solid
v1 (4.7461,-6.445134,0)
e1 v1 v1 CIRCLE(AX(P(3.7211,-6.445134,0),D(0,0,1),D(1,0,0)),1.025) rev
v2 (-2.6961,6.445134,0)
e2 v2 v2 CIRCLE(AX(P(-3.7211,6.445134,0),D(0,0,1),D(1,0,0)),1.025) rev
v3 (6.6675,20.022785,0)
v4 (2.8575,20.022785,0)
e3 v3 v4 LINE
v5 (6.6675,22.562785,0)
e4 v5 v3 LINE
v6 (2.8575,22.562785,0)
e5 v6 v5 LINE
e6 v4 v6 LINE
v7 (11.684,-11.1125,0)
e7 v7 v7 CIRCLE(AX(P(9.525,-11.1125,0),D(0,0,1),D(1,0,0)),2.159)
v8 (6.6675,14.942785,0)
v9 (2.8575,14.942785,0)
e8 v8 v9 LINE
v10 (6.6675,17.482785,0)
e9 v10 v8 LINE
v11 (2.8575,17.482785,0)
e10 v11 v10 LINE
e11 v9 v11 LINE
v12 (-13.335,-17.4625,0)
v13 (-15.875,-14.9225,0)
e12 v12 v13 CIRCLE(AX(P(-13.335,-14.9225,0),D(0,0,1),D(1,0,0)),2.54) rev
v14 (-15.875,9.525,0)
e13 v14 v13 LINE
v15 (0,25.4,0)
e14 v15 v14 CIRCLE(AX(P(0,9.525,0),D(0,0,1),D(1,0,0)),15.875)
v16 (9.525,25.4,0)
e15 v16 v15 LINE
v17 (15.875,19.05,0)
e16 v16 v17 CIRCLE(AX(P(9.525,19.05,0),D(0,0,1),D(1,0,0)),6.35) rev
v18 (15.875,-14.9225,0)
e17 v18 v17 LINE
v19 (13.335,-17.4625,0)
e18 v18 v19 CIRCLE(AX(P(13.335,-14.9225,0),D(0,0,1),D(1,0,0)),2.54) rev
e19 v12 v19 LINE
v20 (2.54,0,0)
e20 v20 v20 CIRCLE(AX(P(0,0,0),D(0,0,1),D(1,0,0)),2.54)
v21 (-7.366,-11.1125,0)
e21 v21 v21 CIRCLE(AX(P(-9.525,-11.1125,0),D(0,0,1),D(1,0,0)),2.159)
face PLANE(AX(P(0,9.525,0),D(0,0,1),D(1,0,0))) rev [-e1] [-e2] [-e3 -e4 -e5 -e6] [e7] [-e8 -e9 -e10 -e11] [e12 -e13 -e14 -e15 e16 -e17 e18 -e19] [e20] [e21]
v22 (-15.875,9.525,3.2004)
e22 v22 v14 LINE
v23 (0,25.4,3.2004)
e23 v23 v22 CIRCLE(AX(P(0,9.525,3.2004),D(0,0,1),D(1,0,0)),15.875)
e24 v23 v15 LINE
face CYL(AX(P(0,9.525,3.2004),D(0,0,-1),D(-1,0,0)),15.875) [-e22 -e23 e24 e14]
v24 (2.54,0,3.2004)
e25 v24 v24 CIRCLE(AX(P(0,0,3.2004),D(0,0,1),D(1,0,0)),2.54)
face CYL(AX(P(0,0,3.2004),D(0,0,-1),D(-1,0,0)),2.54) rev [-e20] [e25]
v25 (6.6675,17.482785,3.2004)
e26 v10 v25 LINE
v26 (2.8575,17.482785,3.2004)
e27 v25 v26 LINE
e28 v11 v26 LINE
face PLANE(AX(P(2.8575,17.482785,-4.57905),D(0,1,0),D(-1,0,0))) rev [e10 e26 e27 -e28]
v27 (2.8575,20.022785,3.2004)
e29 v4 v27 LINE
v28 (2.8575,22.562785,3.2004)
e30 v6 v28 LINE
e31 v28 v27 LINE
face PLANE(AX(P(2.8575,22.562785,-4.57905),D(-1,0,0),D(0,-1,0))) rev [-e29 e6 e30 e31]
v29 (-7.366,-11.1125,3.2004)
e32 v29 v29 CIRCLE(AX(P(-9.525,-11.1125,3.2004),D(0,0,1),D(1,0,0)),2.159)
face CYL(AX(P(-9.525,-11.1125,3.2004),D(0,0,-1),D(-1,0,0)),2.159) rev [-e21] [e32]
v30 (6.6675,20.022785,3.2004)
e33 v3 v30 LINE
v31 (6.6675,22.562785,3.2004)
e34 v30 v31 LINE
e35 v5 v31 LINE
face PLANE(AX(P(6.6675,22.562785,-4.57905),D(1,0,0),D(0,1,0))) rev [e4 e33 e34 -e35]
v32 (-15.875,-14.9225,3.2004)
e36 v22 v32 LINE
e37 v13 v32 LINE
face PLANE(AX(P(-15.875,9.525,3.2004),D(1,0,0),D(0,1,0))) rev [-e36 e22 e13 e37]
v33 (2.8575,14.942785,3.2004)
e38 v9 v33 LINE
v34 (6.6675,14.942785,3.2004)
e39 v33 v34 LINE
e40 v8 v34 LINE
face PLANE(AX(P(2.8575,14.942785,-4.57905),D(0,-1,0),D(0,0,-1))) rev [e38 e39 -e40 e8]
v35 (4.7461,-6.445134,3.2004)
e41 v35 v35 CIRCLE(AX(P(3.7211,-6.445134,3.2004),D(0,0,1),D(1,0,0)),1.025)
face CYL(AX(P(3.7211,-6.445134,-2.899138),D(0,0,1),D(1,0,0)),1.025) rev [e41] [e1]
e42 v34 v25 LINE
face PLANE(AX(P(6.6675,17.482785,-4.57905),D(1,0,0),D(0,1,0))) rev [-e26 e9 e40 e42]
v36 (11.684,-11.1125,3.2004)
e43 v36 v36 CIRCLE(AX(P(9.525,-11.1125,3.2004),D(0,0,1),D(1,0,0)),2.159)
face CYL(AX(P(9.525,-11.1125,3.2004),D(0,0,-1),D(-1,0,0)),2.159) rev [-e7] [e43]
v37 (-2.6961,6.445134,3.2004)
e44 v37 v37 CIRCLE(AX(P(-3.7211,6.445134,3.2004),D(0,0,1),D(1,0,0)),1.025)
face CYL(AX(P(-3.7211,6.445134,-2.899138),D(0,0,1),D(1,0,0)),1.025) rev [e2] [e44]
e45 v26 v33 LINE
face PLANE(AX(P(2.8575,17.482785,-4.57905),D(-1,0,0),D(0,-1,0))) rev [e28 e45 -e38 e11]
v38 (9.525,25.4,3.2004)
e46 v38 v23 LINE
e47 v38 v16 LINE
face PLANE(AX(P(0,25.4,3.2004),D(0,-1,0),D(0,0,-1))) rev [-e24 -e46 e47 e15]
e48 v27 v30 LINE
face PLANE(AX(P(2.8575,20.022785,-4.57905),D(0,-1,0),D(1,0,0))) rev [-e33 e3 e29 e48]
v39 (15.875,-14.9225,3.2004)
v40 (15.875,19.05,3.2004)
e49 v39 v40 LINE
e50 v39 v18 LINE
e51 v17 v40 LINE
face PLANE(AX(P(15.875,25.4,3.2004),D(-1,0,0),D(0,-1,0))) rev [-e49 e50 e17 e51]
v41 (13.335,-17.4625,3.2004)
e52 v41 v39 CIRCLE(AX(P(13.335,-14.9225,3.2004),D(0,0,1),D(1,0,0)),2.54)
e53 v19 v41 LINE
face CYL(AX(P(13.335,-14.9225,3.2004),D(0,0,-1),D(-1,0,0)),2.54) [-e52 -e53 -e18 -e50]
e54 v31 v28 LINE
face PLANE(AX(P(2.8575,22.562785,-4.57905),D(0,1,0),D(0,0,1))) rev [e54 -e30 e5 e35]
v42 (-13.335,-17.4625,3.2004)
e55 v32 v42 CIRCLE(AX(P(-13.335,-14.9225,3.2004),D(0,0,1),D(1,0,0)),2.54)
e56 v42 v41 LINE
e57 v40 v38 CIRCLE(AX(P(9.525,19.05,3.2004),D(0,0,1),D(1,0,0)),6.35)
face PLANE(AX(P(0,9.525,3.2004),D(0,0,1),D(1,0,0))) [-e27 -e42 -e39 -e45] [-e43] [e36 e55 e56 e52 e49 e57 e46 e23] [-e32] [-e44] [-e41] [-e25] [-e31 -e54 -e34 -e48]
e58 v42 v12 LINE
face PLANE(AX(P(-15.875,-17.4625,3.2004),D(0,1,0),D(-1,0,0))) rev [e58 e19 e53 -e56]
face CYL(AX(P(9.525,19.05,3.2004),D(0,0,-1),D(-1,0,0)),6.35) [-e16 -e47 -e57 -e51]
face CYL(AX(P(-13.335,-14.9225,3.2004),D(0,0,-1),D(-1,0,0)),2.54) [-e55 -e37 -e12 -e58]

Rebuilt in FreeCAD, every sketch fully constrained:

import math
import FreeCAD as App
import Part
import Sketcher

V = App.Vector
Q = App.Units.Quantity


def edges_at(feature, points):
    """Names of the edges that pass closest to the given points."""
    edges = feature.Shape.Edges
    near = lambda p: min(range(len(edges)), key=lambda i: edges[i].distToShape(Part.Vertex(*p))[0])
    return sorted({f"Edge{near(p) + 1}" for p in points})


def add_polygon(sketch, points):
    """Adds a closed chain of lines whose ends are joined by coincident constraints."""
    first, n = sketch.GeometryCount, len(points)
    for a, b in zip(points, points[1:] + points[:1]):
        sketch.addGeometry(Part.LineSegment(App.Vector(*a, 0), App.Vector(*b, 0)), False)
    for i in range(n):
        sketch.addConstraint(Sketcher.Constraint("Coincident", first + i, 2, first + (i + 1) % n, 1))

doc = App.newDocument("Part")
params = doc.addObject("Spreadsheet::Sheet", "Params")
for row, (alias, value) in enumerate([
    ("sketch1_diameter", "0.2 in"),
    ("sketch1_diameter2", "0.17 in"),
    ("sketch1_radius", "0.625 in"),
    ("sketch1_height", "1.6875 in"),
    ("pad1_length", "0.126 in"),
    ("fillet_radius", "0.25 in"),
    ("fillet2_radius", "0.1 in"),
    ("pocket1_length", "0.126 in"),
    ("sketch3_height", "0.1 in"),
    ("sketch3_width", "0.15 in"),
    ("pocket2_length", "0.126 in"),
], start=1):
    params.set(f"A{row}", alias)
    params.set(f"B{row}", "=" + value)
    params.setAlias(f"B{row}", alias)

body = doc.addObject("PartDesign::Body", "Body")

# Sketch on XY plane
sketch1 = doc.addObject("Sketcher::SketchObject", "Sketch")
body.addObject(sketch1)
sketch1.AttachmentSupport = (doc.XY_Plane, [""])
sketch1.MapMode = "FlatFace"
sketch1.addGeometry(Part.LineSegment(V(15.875, -17.4625, 0), V(15.875, 25.4, 0)), False)
sketch1.addGeometry(Part.LineSegment(V(15.875, 25.4, 0), V(0, 25.4, 0)), False)
sketch1.addGeometry(Part.ArcOfCircle(Part.Circle(V(0, 9.525, 0), V(0, 0, 1), 15.875), math.radians(90), math.radians(180)), False)
sketch1.addGeometry(Part.LineSegment(V(-15.875, 9.525, 0), V(-15.875, -17.4625, 0)), False)
sketch1.addGeometry(Part.LineSegment(V(-15.875, -17.4625, 0), V(15.875, -17.4625, 0)), False)
sketch1.addGeometry(Part.Circle(V(9.525, -11.1125, 0), V(0, 0, 1), 2.159), False)
sketch1.addGeometry(Part.Circle(V(-9.525, -11.1125, 0), V(0, 0, 1), 2.159), False)
sketch1.addGeometry(Part.Circle(V(0, 0, 0), V(0, 0, 1), 2.54), False)
sketch1.addConstraint(Sketcher.Constraint("Coincident", 0, 2, 1, 1))
sketch1.addConstraint(Sketcher.Constraint("Tangent", 1, 2, 2, 1))
sketch1.addConstraint(Sketcher.Constraint("Tangent", 2, 2, 3, 1))
sketch1.addConstraint(Sketcher.Constraint("Coincident", 3, 2, 4, 1))
sketch1.addConstraint(Sketcher.Constraint("Coincident", 4, 2, 0, 1))
sketch1.addConstraint(Sketcher.Constraint("Vertical", 0))
sketch1.addConstraint(Sketcher.Constraint("Horizontal", 1))
sketch1.addConstraint(Sketcher.Constraint("Vertical", 3))
sketch1.addConstraint(Sketcher.Constraint("Horizontal", 4))
sketch1.addConstraint(Sketcher.Constraint("Coincident", 7, 3, -1, 1))
sketch1.addConstraint(Sketcher.Constraint("Equal", 5, 6))
sketch1.addConstraint(Sketcher.Constraint("Symmetric", 5, 3, 6, 3, -2))
sketch1.addConstraint(Sketcher.Constraint("PointOnObject", 2, 3, -2))
sketch1.addConstraint(Sketcher.Constraint("Diameter", 7, Q("0.2 in")))
sketch1.addConstraint(Sketcher.Constraint("Diameter", 5, Q("0.17 in")))
sketch1.addConstraint(Sketcher.Constraint("DistanceY", -1, 1, 0, 2, Q("1 in")))
sketch1.addConstraint(Sketcher.Constraint("Radius", 2, Q("0.625 in")))
sketch1.addConstraint(Sketcher.Constraint("DistanceX", 6, 3, 0, 2, Q("1 in")))
sketch1.addConstraint(Sketcher.Constraint("DistanceX", 2, 2, 5, 3, Q("1 in")))
sketch1.addConstraint(Sketcher.Constraint("DistanceY", 0, 1, 0, 2, Q("1.6875 in")))
sketch1.addConstraint(Sketcher.Constraint("DistanceY", 3, 2, 6, 3, Q("0.25 in")))
sketch1.setExpression("Constraints[13]", "Params.sketch1_diameter")
sketch1.setExpression("Constraints[14]", "Params.sketch1_diameter2")
sketch1.setExpression("Constraints[16]", "Params.sketch1_radius")
sketch1.setExpression("Constraints[19]", "Params.sketch1_height")
pad1 = doc.addObject("PartDesign::Pad", "Pad")
body.addObject(pad1)
pad1.Profile = sketch1
pad1.setExpression("Length", "Params.pad1_length")
doc.recompute()

fillet = doc.addObject("PartDesign::Fillet", "Fillet")
body.addObject(fillet)
fillet.Base = (pad1, edges_at(pad1, [(15.875, 25.4, 1.6)]))
fillet.setExpression("Radius", "Params.fillet_radius")
doc.recompute()

fillet2 = doc.addObject("PartDesign::Fillet", "Fillet001")
body.addObject(fillet2)
fillet2.Base = (fillet, edges_at(fillet, [(15.875, -17.462, 1.6), (-15.875, -17.462, 1.6)]))
fillet2.setExpression("Radius", "Params.fillet2_radius")

# Sketch on XY plane
sketch2 = doc.addObject("Sketcher::SketchObject", "Sketch001")
body.addObject(sketch2)
sketch2.AttachmentSupport = (doc.XY_Plane, [""])
sketch2.MapMode = "FlatFace"
sketch2.AttachmentOffset = App.Placement(V(0, 0, 0.126 * 25.4), App.Rotation())
sketch2.addGeometry(Part.Circle(V(-3.7211, 6.445134, 0), V(0, 0, 1), 1.025), False)
sketch2.addGeometry(Part.Circle(V(3.7211, -6.445134, 0), V(0, 0, 1), 1.025), False)
sketch2.addConstraint(Sketcher.Constraint("Equal", 0, 1))
sketch2.addConstraint(Sketcher.Constraint("Symmetric", 0, 3, 1, 3, -1, 1))
sketch2.addConstraint(Sketcher.Constraint("Diameter", 0, 2.05))
sketch2.addConstraint(Sketcher.Constraint("DistanceX", 0, 3, 1, 3, Q("0.293 in")))
sketch2.addConstraint(Sketcher.Constraint("DistanceY", 1, 3, 0, 3, 12.890269))
pocket1 = doc.addObject("PartDesign::Pocket", "Pocket")
body.addObject(pocket1)
pocket1.Profile = sketch2
pocket1.setExpression("Length", "Params.pocket1_length")

# Sketch on XY plane
sketch3 = doc.addObject("Sketcher::SketchObject", "Sketch002")
body.addObject(sketch3)
sketch3.AttachmentSupport = (doc.XY_Plane, [""])
sketch3.MapMode = "FlatFace"
sketch3.AttachmentOffset = App.Placement(V(0, 0, 0.126 * 25.4), App.Rotation())
add_polygon(sketch3, [(2.8575, 22.562785), (2.8575, 20.022785), (6.6675, 20.022785), (6.6675, 22.562785)])  # lines 0-3
add_polygon(sketch3, [(2.8575, 17.482785), (2.8575, 14.942785), (6.6675, 14.942785), (6.6675, 17.482785)])  # lines 4-7
sketch3.addConstraint(Sketcher.Constraint("Vertical", 0))
sketch3.addConstraint(Sketcher.Constraint("Horizontal", 1))
sketch3.addConstraint(Sketcher.Constraint("Vertical", 2))
sketch3.addConstraint(Sketcher.Constraint("Horizontal", 3))
sketch3.addConstraint(Sketcher.Constraint("Vertical", 4))
sketch3.addConstraint(Sketcher.Constraint("Horizontal", 5))
sketch3.addConstraint(Sketcher.Constraint("Vertical", 6))
sketch3.addConstraint(Sketcher.Constraint("Horizontal", 7))
sketch3.addConstraint(Sketcher.Constraint("Vertical", 3, 2, 4, 2))
sketch3.addConstraint(Sketcher.Constraint("Vertical", 2, 2, 5, 2))
sketch3.addConstraint(Sketcher.Constraint("Equal", 2, 4))
sketch3.addConstraint(Sketcher.Constraint("DistanceY", 0, 2, 0, 1, Q("0.1 in")))
sketch3.addConstraint(Sketcher.Constraint("DistanceX", 1, 1, 1, 2, Q("0.15 in")))
sketch3.addConstraint(Sketcher.Constraint("DistanceY", 4, 2, 0, 2, Q("0.2 in")))
sketch3.addConstraint(Sketcher.Constraint("DistanceX", -1, 1, 0, 2, Q("0.1125 in")))
sketch3.addConstraint(Sketcher.Constraint("DistanceY", -1, 1, 0, 2, 20.022785))
sketch3.setExpression("Constraints[19]", "Params.sketch3_height")
sketch3.setExpression("Constraints[20]", "Params.sketch3_width")
pocket2 = doc.addObject("PartDesign::Pocket", "Pocket001")
body.addObject(pocket2)
pocket2.Profile = sketch3
pocket2.setExpression("Length", "Params.pocket2_length")

doc.recompute()
